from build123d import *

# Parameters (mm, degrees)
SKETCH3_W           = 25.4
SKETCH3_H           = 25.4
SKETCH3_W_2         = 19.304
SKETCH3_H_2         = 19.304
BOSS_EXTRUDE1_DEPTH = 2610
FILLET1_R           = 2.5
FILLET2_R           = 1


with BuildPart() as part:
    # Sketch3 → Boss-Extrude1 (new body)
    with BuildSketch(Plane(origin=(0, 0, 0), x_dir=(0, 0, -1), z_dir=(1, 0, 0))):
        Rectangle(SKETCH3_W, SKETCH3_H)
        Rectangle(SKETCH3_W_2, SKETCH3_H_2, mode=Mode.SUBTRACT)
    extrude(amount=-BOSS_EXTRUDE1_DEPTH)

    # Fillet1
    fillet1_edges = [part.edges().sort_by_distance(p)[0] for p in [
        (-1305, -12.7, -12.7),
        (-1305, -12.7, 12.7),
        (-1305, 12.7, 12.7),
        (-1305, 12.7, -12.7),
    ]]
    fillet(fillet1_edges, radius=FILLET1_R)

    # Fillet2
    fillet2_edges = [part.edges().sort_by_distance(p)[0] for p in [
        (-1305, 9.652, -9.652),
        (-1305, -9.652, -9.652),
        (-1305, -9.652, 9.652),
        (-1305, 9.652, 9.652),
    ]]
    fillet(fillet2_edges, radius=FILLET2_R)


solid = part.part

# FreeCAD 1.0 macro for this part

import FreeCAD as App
import Part
import Sketcher
from FreeCAD import Vector
Q = App.Units.Quantity


def edges_at(feature, points):
    """Names of the edges that pass closest to the given points."""
    edges = feature.Shape.Edges
    near = lambda p: min(range(len(edges)), key=lambda i: edges[i].distToShape(Part.Vertex(*p))[0])
    return sorted({f"Edge{near(p) + 1}" for p in points})


def add_polygon(sketch, points):
    """Adds a closed chain of lines whose ends are joined by coincident constraints."""
    first, n = sketch.GeometryCount, len(points)
    for a, b in zip(points, points[1:] + points[:1]):
        sketch.addGeometry(Part.LineSegment(App.Vector(*a, 0), App.Vector(*b, 0)), False)
    for i in range(n):
        sketch.addConstraint(Sketcher.Constraint("Coincident", first + i, 2, first + (i + 1) % n, 1))

doc = App.newDocument("Part")
body = doc.addObject("PartDesign::Body", "Body")

# Sketch on YZ plane
sketch1 = body.newObject("Sketcher::SketchObject", "Sketch")
sketch1.AttachmentSupport = (doc.getObject("YZ_Plane"), [""])
sketch1.MapMode = "FlatFace"
add_polygon(sketch1, [(12.7, 12.7), (-12.7, 12.7), (-12.7, -12.7), (12.7, -12.7)])  # lines 0-3
add_polygon(sketch1, [(-9.652, -9.652), (-9.652, 9.652), (9.652, 9.652), (9.652, -9.652)])  # lines 4-7
sketch1.addConstraint([
    Sketcher.Constraint("Horizontal", 0),
    Sketcher.Constraint("Vertical", 1),
    Sketcher.Constraint("Horizontal", 2),
    Sketcher.Constraint("Vertical", 3),
    Sketcher.Constraint("Vertical", 4),
    Sketcher.Constraint("Horizontal", 5),
    Sketcher.Constraint("Vertical", 6),
    Sketcher.Constraint("Horizontal", 7),
    Sketcher.Constraint("Symmetric", 0, 2, 2, 2, -1, 1),
    Sketcher.Constraint("Symmetric", 4, 2, 6, 2, -1, 1),
    Sketcher.Constraint("Equal", 2, 1),
    Sketcher.Constraint("Equal", 7, 4),
    Sketcher.Constraint("DistanceX", 0, 2, 0, 1, Q("25.4 mm")),
    Sketcher.Constraint("DistanceX", 5, 1, 5, 2, Q("19.304 mm")),
])
pad1 = body.newObject("PartDesign::Pad", "Pad")
pad1.Profile = sketch1
pad1.Length = 2610
pad1.Reversed = True
doc.recompute()

fillet = body.newObject("PartDesign::Fillet", "Fillet")
fillet.Base = (pad1, edges_at(pad1, [
    (-1305, -12.7, -12.7),
    (-1305, -12.7, 12.7),
    (-1305, 12.7, 12.7),
    (-1305, 12.7, -12.7),
]))
fillet.Radius = 2.5
doc.recompute()

fillet2 = body.newObject("PartDesign::Fillet", "Fillet001")
fillet2.Base = (fillet, edges_at(fillet, [
    (-1305, 9.652, -9.652),
    (-1305, -9.652, -9.652),
    (-1305, -9.652, 9.652),
    (-1305, 9.652, 9.652),
]))
fillet2.Radius = 1

doc.recompute()
